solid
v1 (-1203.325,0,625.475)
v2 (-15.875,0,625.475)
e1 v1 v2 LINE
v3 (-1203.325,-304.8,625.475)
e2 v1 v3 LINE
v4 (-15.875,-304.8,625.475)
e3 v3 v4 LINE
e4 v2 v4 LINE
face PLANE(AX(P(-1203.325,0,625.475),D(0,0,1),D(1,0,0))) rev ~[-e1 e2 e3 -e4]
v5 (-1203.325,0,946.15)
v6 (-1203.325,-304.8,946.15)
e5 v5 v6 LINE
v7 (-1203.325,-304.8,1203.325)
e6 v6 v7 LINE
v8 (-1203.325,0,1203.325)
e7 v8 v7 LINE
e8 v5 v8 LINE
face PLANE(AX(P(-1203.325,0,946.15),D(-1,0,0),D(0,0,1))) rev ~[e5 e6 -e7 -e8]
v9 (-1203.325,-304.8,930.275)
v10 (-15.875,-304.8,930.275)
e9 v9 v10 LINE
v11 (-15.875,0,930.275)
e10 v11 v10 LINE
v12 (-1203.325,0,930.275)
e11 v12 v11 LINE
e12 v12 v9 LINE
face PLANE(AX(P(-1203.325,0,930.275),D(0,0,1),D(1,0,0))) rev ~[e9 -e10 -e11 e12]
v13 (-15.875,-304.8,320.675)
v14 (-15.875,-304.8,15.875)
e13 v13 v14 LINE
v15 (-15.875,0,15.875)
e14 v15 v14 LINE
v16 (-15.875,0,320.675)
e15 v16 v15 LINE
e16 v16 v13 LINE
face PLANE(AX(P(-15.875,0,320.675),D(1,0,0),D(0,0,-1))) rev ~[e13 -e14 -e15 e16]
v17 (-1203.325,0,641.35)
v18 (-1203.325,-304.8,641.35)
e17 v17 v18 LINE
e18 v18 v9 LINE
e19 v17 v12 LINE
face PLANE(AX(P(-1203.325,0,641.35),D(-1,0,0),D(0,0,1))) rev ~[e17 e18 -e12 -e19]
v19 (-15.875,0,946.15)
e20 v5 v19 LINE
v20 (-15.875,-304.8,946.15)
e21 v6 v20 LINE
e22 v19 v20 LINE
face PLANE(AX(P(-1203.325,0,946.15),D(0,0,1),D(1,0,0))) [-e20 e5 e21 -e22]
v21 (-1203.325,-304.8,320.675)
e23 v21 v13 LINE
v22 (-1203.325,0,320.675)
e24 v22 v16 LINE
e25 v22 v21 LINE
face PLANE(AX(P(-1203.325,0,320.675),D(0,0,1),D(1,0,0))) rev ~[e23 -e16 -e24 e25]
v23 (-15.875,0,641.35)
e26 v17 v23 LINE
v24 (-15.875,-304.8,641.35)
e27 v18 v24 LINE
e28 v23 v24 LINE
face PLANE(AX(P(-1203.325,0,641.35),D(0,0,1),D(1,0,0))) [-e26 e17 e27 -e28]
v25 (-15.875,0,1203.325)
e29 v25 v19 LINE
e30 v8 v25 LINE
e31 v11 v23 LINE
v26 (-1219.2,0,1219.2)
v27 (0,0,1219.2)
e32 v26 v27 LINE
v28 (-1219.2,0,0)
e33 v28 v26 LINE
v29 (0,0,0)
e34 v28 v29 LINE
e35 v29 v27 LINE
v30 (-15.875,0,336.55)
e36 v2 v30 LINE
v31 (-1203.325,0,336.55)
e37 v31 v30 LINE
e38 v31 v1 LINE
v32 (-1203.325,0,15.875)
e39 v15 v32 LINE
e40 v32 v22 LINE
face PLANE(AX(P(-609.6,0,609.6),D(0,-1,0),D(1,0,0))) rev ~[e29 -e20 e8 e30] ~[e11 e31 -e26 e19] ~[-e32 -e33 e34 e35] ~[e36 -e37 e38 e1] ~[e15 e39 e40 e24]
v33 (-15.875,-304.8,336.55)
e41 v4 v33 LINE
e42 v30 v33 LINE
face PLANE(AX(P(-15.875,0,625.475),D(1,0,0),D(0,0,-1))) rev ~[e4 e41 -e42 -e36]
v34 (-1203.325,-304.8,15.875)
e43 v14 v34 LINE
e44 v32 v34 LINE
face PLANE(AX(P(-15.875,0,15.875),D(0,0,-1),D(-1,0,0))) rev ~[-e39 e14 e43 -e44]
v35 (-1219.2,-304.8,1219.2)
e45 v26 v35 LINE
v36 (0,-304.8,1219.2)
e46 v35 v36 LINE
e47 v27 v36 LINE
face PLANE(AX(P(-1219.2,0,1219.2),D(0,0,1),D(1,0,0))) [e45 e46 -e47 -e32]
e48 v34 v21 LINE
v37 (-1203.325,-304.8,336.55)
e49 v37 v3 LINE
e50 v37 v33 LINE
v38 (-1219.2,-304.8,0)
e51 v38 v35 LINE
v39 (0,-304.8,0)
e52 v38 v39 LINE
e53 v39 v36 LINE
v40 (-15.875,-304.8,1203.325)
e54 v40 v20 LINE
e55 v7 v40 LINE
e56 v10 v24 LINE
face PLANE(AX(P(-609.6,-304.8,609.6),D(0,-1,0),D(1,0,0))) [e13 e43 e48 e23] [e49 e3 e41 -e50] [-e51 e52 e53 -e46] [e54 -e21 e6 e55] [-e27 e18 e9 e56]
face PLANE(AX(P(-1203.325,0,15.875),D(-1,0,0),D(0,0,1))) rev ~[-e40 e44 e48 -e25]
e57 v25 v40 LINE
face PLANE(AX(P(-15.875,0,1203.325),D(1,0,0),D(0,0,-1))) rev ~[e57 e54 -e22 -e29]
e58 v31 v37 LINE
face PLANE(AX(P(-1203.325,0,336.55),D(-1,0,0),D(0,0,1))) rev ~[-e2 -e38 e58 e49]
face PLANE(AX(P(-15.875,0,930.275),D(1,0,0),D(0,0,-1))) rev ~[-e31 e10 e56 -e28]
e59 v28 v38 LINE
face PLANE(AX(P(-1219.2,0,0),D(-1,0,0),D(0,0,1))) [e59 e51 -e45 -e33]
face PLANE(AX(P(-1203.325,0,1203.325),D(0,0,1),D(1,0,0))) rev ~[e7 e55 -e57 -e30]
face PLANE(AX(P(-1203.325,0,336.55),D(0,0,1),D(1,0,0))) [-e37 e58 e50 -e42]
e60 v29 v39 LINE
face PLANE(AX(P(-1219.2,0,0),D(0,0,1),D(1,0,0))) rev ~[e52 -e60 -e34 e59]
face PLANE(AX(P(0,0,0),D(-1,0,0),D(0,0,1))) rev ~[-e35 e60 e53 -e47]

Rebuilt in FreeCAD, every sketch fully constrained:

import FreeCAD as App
import Part
import Sketcher

V = App.Vector
Q = App.Units.Quantity

doc = App.newDocument("Part")
params = doc.addObject("Spreadsheet::Sheet", "Params")
for row, (alias, value) in enumerate([
    ("sketch1_width", "48 in"),
    ("sketch1_height", "12 in"),
    ("sketch1_width2", "46.75 in"),
    ("sketch1_height2", "11.375 in"),
    ("sketch1_height3", "10.125 in"),
    ("pad1_length", "12 in"),
], start=1):
    params.set(f"A{row}", alias)
    params.set(f"B{row}", "=" + value)
    params.setAlias(f"B{row}", alias)

body = doc.addObject("PartDesign::Body", "Body")

sketch1 = body.newObject("Sketcher::SketchObject", "Sketch")
sketch1.AttachmentSupport = (doc.getObject("XZ_Plane"), [""])
sketch1.MapMode = "FlatFace"
sketch1.addGeometry([
    Part.LineSegment(V(-1219, 1219, 0), V(-1219, 0, 0)),
    Part.LineSegment(V(-1219, 0, 0), V(0, 0, 0)),
    Part.LineSegment(V(0, 0, 0), V(0, 1219, 0)),
    Part.LineSegment(V(0, 1219, 0), V(-1219, 1219, 0)),
    Part.LineSegment(V(-1203, 16, 0), V(-1203, 321, 0)),
    Part.LineSegment(V(-1203, 321, 0), V(-16, 321, 0)),
    Part.LineSegment(V(-16, 321, 0), V(-16, 16, 0)),
    Part.LineSegment(V(-16, 16, 0), V(-1203, 16, 0)),
    Part.LineSegment(V(-1203, 337, 0), V(-1203, 625, 0)),
    Part.LineSegment(V(-1203, 625, 0), V(-16, 625, 0)),
    Part.LineSegment(V(-16, 625, 0), V(-16, 337, 0)),
    Part.LineSegment(V(-16, 337, 0), V(-1203, 337, 0)),
    Part.LineSegment(V(-1203, 641, 0), V(-1203, 930, 0)),
    Part.LineSegment(V(-1203, 930, 0), V(-16, 930, 0)),
    Part.LineSegment(V(-16, 930, 0), V(-16, 641, 0)),
    Part.LineSegment(V(-16, 641, 0), V(-1203, 641, 0)),
    Part.LineSegment(V(-1203, 946, 0), V(-1203, 1203, 0)),
    Part.LineSegment(V(-1203, 1203, 0), V(-16, 1203, 0)),
    Part.LineSegment(V(-16, 1203, 0), V(-16, 946, 0)),
    Part.LineSegment(V(-16, 946, 0), V(-1203, 946, 0)),
], False)
sketch1.addConstraint([
    Sketcher.Constraint("Coincident", 0, 2, 1, 1),
    Sketcher.Constraint("Coincident", 1, 2, 2, 1),
    Sketcher.Constraint("Coincident", 2, 2, 3, 1),
    Sketcher.Constraint("Coincident", 3, 2, 0, 1),
    Sketcher.Constraint("Coincident", 4, 2, 5, 1),
    Sketcher.Constraint("Coincident", 5, 2, 6, 1),
    Sketcher.Constraint("Coincident", 6, 2, 7, 1),
    Sketcher.Constraint("Coincident", 7, 2, 4, 1),
    Sketcher.Constraint("Coincident", 8, 2, 9, 1),
    Sketcher.Constraint("Coincident", 9, 2, 10, 1),
    Sketcher.Constraint("Coincident", 10, 2, 11, 1),
    Sketcher.Constraint("Coincident", 11, 2, 8, 1),
    Sketcher.Constraint("Coincident", 12, 2, 13, 1),
    Sketcher.Constraint("Coincident", 13, 2, 14, 1),
    Sketcher.Constraint("Coincident", 14, 2, 15, 1),
    Sketcher.Constraint("Coincident", 15, 2, 12, 1),
    Sketcher.Constraint("Coincident", 16, 2, 17, 1),
    Sketcher.Constraint("Coincident", 17, 2, 18, 1),
    Sketcher.Constraint("Coincident", 18, 2, 19, 1),
    Sketcher.Constraint("Coincident", 19, 2, 16, 1),
    Sketcher.Constraint("Vertical", 0),
    Sketcher.Constraint("Horizontal", 1),
    Sketcher.Constraint("Vertical", 2),
    Sketcher.Constraint("Horizontal", 3),
    Sketcher.Constraint("Vertical", 4),
    Sketcher.Constraint("Horizontal", 5),
    Sketcher.Constraint("Vertical", 6),
    Sketcher.Constraint("Horizontal", 7),
    Sketcher.Constraint("Vertical", 8),
    Sketcher.Constraint("Horizontal", 9),
    Sketcher.Constraint("Vertical", 10),
    Sketcher.Constraint("Horizontal", 11),
    Sketcher.Constraint("Vertical", 12),
    Sketcher.Constraint("Horizontal", 13),
    Sketcher.Constraint("Vertical", 14),
    Sketcher.Constraint("Horizontal", 15),
    Sketcher.Constraint("Vertical", 16),
    Sketcher.Constraint("Horizontal", 17),
    Sketcher.Constraint("Vertical", 18),
    Sketcher.Constraint("Horizontal", 19),
    Sketcher.Constraint("Coincident", 1, 2, -1, 1),
    Sketcher.Constraint("Vertical", 7, 2, 8, 2),
    Sketcher.Constraint("Vertical", 6, 2, 9, 2),
    Sketcher.Constraint("Vertical", 11, 2, 12, 2),
    Sketcher.Constraint("Vertical", 10, 2, 13, 2),
    Sketcher.Constraint("Vertical", 15, 2, 16, 2),
    Sketcher.Constraint("Vertical", 14, 2, 17, 2),
    Sketcher.Constraint("Equal", 3, 0),
    Sketcher.Constraint("Equal", 10, 12),
    Sketcher.Constraint("DistanceX", 1, 1, 1, 2, Q("48 in")),
    Sketcher.Constraint("DistanceY", 4, 1, 4, 2, Q("12 in")),
    Sketcher.Constraint("DistanceY", 4, 2, 8, 2, Q("12 in")),
    Sketcher.Constraint("DistanceY", 8, 2, 12, 2, Q("12 in")),
    Sketcher.Constraint("DistanceY", 14, 2, 18, 2, Q("12 in")),
    Sketcher.Constraint("DistanceX", 5, 1, 5, 2, Q("46.75 in")),
    Sketcher.Constraint("DistanceY", 8, 1, 8, 2, Q("11.375 in")),
    Sketcher.Constraint("DistanceY", 16, 1, 16, 2, Q("10.125 in")),
    Sketcher.Constraint("DistanceY", -1, 1, 10, 2, Q("13.25 in")),
    Sketcher.Constraint("DistanceX", 4, 2, -1, 1, Q("47.375 in")),
])
sketch1.setExpression("Constraints[49]", "Params.sketch1_width")
sketch1.setExpression("Constraints[50]", "Params.sketch1_height")
sketch1.setExpression("Constraints[54]", "Params.sketch1_width2")
sketch1.setExpression("Constraints[55]", "Params.sketch1_height2")
sketch1.setExpression("Constraints[56]", "Params.sketch1_height3")
pad1 = body.newObject("PartDesign::Pad", "Pad")
pad1.Profile = sketch1
pad1.setExpression("Length", "Params.pad1_length")

doc.recompute()
